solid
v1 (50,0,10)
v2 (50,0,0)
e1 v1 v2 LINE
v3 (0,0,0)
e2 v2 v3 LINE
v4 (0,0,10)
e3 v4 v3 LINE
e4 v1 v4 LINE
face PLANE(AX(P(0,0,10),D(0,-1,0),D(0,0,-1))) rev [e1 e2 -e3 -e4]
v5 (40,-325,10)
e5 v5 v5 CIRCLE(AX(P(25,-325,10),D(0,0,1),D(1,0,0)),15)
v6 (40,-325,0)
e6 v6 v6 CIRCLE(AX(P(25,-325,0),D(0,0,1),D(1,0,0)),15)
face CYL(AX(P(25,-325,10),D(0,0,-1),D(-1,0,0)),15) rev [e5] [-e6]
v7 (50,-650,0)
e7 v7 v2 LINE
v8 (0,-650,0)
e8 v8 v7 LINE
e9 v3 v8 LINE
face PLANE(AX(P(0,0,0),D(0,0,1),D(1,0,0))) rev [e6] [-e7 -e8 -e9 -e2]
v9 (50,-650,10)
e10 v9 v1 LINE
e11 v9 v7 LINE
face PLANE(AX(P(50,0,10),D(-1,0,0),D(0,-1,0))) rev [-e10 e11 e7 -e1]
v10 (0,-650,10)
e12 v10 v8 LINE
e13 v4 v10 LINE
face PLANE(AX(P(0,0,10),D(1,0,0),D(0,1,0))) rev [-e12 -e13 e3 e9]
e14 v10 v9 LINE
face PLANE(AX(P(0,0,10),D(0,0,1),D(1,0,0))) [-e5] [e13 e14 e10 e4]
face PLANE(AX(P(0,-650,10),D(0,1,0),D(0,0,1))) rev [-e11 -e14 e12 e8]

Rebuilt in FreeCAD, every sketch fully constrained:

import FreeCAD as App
import Part
import Sketcher


def add_polygon(sketch, points):
    """Adds a closed chain of lines whose ends are joined by coincident constraints."""
    first, n = sketch.GeometryCount, len(points)
    for a, b in zip(points, points[1:] + points[:1]):
        sketch.addGeometry(Part.LineSegment(App.Vector(*a, 0), App.Vector(*b, 0)), False)
    for i in range(n):
        sketch.addConstraint(Sketcher.Constraint("Coincident", first + i, 2, first + (i + 1) % n, 1))

doc = App.newDocument("Part")
body = doc.addObject("PartDesign::Body", "Body")

sketch1 = body.newObject("Sketcher::SketchObject", "Sketch")
sketch1.AttachmentSupport = (doc.getObject("XY_Plane"), [""])
sketch1.MapMode = "FlatFace"
add_polygon(sketch1, [(0, 0), (0, -650), (50, -650), (50, 0)])
sketch1.addGeometry(Part.Circle(App.Vector(25, -325, 0), App.Vector(0, 0, 1), 15), False)
sketch1.addConstraint([
    Sketcher.Constraint("Vertical", 0),
    Sketcher.Constraint("Horizontal", 1),
    Sketcher.Constraint("Vertical", 2),
    Sketcher.Constraint("Horizontal", 3),
    Sketcher.Constraint("Coincident", 3, 2, -1, 1),
    Sketcher.Constraint("Diameter", 4, 30.0),
    Sketcher.Constraint("DistanceX", 1, 1, 1, 2, 50.0),
    Sketcher.Constraint("DistanceY", 0, 2, 0, 1, 650.0),
    Sketcher.Constraint("DistanceX", -1, 1, 4, 3, 25.0),
    Sketcher.Constraint("DistanceY", 4, 3, -1, 1, 325.0),
])
pad1 = body.newObject("PartDesign::Pad", "Pad")
pad1.Profile = sketch1
pad1.Length = 10

doc.recompute()
